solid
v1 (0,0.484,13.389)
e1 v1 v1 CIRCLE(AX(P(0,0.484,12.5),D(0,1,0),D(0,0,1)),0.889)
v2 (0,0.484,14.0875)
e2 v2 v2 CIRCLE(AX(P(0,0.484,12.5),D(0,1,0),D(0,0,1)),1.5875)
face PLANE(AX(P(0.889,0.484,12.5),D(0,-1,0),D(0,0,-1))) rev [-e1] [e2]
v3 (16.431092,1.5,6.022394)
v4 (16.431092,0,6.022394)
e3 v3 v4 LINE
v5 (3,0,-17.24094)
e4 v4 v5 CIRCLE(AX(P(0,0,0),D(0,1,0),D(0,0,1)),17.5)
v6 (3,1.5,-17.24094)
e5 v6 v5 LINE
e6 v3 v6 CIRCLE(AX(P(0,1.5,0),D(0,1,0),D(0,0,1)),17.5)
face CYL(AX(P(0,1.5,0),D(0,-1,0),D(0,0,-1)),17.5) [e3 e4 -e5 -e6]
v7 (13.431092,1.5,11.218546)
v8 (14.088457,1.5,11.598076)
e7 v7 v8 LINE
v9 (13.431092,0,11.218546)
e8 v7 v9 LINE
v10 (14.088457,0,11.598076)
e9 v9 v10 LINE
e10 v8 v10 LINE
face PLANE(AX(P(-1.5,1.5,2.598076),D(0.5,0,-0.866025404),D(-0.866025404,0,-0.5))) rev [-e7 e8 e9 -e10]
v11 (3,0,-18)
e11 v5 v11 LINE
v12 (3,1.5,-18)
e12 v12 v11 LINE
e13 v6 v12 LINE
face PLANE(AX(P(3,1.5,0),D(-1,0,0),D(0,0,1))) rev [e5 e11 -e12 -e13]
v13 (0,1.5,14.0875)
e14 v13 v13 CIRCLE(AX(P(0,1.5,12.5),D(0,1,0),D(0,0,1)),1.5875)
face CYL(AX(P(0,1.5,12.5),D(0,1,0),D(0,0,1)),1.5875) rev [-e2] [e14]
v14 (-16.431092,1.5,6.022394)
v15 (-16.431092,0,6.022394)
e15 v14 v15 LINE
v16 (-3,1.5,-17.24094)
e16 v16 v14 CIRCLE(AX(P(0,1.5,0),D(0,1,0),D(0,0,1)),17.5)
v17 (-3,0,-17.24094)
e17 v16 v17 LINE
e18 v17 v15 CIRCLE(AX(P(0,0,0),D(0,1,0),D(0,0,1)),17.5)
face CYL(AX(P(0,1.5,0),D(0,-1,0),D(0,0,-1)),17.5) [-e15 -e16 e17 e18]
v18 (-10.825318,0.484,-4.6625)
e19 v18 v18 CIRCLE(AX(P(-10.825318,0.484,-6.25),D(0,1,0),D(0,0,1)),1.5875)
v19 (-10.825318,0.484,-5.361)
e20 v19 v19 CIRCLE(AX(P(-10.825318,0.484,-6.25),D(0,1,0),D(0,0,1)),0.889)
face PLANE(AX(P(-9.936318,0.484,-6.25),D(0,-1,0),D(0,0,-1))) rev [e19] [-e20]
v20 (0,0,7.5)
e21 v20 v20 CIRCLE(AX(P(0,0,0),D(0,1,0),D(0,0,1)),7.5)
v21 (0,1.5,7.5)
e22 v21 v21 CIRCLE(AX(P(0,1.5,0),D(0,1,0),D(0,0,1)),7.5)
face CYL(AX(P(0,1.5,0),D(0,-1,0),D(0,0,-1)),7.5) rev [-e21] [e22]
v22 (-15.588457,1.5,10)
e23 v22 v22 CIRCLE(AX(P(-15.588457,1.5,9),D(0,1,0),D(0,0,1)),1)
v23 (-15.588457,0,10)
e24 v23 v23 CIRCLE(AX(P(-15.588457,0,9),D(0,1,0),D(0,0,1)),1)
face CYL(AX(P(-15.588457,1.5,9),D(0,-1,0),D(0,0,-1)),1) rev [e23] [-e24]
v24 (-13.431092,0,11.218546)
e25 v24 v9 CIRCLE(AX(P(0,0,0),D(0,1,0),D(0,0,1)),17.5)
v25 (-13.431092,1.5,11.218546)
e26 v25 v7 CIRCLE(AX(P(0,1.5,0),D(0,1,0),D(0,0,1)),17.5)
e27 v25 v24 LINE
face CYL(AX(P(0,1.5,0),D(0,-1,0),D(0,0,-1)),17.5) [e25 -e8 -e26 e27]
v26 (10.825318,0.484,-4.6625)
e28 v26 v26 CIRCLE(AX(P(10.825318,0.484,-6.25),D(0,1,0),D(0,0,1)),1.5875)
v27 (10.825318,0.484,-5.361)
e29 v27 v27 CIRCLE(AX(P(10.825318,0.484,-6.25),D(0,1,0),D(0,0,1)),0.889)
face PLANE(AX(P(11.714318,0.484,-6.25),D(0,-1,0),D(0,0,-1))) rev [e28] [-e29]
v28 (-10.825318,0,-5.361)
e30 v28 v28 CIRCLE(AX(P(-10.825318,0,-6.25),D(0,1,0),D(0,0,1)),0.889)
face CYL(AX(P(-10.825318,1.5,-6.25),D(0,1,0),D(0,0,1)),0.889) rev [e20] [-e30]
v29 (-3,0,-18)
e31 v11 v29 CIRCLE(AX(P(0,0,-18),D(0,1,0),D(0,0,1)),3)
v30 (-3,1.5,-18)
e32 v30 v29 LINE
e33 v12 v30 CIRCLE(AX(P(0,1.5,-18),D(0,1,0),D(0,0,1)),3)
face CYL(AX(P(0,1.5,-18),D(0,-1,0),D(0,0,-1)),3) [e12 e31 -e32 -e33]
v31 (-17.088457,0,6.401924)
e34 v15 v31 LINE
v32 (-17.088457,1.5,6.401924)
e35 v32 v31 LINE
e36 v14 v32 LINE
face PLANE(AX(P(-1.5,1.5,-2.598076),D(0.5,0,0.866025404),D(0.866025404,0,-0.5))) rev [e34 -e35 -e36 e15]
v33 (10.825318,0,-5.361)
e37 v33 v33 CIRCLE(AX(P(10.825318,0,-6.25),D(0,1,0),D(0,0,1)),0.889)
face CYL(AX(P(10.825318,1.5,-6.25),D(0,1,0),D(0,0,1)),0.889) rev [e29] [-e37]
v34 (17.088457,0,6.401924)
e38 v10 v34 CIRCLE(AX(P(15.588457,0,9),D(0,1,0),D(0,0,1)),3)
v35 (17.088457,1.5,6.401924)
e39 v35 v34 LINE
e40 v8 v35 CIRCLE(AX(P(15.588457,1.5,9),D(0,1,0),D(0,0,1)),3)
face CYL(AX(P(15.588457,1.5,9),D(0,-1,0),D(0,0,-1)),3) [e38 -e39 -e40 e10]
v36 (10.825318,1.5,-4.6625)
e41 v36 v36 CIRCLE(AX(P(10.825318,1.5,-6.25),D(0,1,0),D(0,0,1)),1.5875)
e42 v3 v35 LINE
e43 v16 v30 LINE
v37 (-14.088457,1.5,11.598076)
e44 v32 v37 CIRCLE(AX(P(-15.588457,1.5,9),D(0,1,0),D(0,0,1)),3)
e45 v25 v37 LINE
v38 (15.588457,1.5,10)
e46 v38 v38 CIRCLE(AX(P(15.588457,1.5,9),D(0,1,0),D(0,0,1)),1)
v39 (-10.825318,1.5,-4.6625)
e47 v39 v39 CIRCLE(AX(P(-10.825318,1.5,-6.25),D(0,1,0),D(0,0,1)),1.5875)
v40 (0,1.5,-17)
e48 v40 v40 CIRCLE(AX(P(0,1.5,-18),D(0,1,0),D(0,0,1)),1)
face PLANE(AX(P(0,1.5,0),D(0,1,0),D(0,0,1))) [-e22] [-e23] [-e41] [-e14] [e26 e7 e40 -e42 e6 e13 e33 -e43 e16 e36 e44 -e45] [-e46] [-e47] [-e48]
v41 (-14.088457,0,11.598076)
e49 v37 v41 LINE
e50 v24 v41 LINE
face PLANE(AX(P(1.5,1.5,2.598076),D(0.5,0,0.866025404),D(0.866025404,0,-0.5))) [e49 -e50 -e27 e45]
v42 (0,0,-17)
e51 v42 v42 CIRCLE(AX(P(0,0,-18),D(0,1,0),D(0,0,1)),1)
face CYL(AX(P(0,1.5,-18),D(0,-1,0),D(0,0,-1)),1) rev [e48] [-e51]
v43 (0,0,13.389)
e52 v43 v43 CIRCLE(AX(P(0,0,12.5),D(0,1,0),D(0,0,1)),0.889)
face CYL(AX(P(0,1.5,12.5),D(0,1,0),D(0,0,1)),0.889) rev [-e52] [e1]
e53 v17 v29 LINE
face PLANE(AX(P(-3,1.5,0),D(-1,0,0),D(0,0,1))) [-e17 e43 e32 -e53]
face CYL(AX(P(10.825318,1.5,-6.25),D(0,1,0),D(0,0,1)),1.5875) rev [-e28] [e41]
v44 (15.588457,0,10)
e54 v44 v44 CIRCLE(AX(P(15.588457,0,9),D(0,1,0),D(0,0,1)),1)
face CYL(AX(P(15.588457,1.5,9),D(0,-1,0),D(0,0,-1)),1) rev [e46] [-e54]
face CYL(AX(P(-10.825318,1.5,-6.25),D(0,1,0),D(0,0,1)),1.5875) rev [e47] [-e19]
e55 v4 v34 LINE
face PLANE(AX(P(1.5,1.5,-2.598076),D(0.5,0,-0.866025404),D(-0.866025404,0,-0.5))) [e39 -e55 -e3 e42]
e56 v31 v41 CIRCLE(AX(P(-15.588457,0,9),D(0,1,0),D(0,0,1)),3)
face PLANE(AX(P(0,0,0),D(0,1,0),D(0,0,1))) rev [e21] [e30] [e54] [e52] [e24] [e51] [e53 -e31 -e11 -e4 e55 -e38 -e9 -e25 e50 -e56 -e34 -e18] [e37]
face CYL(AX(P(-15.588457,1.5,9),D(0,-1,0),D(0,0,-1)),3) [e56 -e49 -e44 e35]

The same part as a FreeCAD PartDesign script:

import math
import FreeCAD as App
import Part
import Sketcher

V = App.Vector
Q = App.Units.Quantity

doc = App.newDocument("Part")
body = doc.addObject("PartDesign::Body", "Body")

sketch1 = body.newObject("Sketcher::SketchObject", "Sketch")
sketch1.AttachmentSupport = (doc.getObject("XZ_Plane"), [""])
sketch1.MapMode = "FlatFace"
sketch1.addGeometry(Part.LineSegment(V(-16.43, 6.02, 0), V(-17.09, 6.4, 0)), False)
sketch1.addGeometry(Part.ArcOfCircle(Part.Circle(V(-15.59, 9, 0), V(0, 0, 1), 3), math.radians(60), math.radians(240)), False)
sketch1.addGeometry(Part.LineSegment(V(-14.09, 11.6, 0), V(-13.43, 11.22, 0)), False)
sketch1.addGeometry(Part.ArcOfCircle(Part.Circle(V(0, 0, 0), V(0, 0, 1), 17.5), math.radians(40), math.radians(140)), False)
sketch1.addGeometry(Part.LineSegment(V(13.43, 11.22, 0), V(14.09, 11.6, 0)), False)
sketch1.addGeometry(Part.ArcOfCircle(Part.Circle(V(15.59, 9, 0), V(0, 0, 1), 3), math.radians(-60), math.radians(120)), False)
sketch1.addGeometry(Part.LineSegment(V(17.09, 6.4, 0), V(16.43, 6.02, 0)), False)
sketch1.addGeometry(Part.ArcOfCircle(Part.Circle(V(0, 0, 0), V(0, 0, 1), 17.5), math.radians(0), math.radians(20)), False)
sketch1.addGeometry(Part.ArcOfCircle(Part.Circle(V(0, 0, 0), V(0, 0, 1), 17.5), math.radians(-80), math.radians(0)), False)
sketch1.addGeometry(Part.LineSegment(V(3, -17.24, 0), V(3, -18, 0)), False)
sketch1.addGeometry(Part.ArcOfCircle(Part.Circle(V(0, -18, 0), V(0, 0, 1), 3), math.radians(180), math.radians(360)), False)
sketch1.addGeometry(Part.LineSegment(V(-3, -18, 0), V(-3, -17.24, 0)), False)
sketch1.addGeometry(Part.ArcOfCircle(Part.Circle(V(0, 0, 0), V(0, 0, 1), 17.5), math.radians(160), math.radians(260)), False)
sketch1.addGeometry(Part.ArcOfCircle(Part.Circle(V(15.59, 9, 0), V(0, 0, 1), 1), math.radians(151), math.radians(269)), False)
sketch1.addGeometry(Part.ArcOfCircle(Part.Circle(V(15.59, 9, 0), V(0, 0, 1), 1), math.radians(-91), math.radians(0)), False)
sketch1.addGeometry(Part.ArcOfCircle(Part.Circle(V(15.59, 9, 0), V(0, 0, 1), 1), math.radians(0), math.radians(151)), False)
sketch1.addGeometry(Part.ArcOfCircle(Part.Circle(V(0, 0, 0), V(0, 0, 1), 7.5), math.radians(-66), math.radians(0)), False)
sketch1.addGeometry(Part.ArcOfCircle(Part.Circle(V(0, 0, 0), V(0, 0, 1), 7.5), math.radians(0), math.radians(6.42)), False)
sketch1.addGeometry(Part.ArcOfCircle(Part.Circle(V(0, 0, 0), V(0, 0, 1), 7.5), math.radians(6), math.radians(54)), False)
sketch1.addGeometry(Part.ArcOfCircle(Part.Circle(V(0, 0, 0), V(0, 0, 1), 7.5), math.radians(54), math.radians(126)), False)
sketch1.addGeometry(Part.ArcOfCircle(Part.Circle(V(0, 0, 0), V(0, 0, 1), 7.5), math.radians(126), math.radians(174)), False)
sketch1.addGeometry(Part.ArcOfCircle(Part.Circle(V(0, 0, 0), V(0, 0, 1), 7.5), math.radians(174), math.radians(246)), False)
sketch1.addGeometry(Part.ArcOfCircle(Part.Circle(V(0, 0, 0), V(0, 0, 1), 7.5), math.radians(-114), math.radians(-66)), False)
sketch1.addGeometry(Part.ArcOfCircle(Part.Circle(V(-15.59, 9, 0), V(0, 0, 1), 1), math.radians(29), math.radians(271)), False)
sketch1.addGeometry(Part.ArcOfCircle(Part.Circle(V(-15.59, 9, 0), V(0, 0, 1), 1), math.radians(-89), math.radians(0)), False)
sketch1.addGeometry(Part.ArcOfCircle(Part.Circle(V(-15.59, 9, 0), V(0, 0, 1), 1), math.radians(0), math.radians(29)), False)
sketch1.addGeometry(Part.ArcOfCircle(Part.Circle(V(0, -18, 0), V(0, 0, 1), 1), math.radians(31), math.radians(149)), False)
sketch1.addGeometry(Part.ArcOfCircle(Part.Circle(V(0, -18, 0), V(0, 0, 1), 1), math.radians(149), math.radians(360)), False)
sketch1.addGeometry(Part.ArcOfCircle(Part.Circle(V(0, -18, 0), V(0, 0, 1), 1), math.radians(0), math.radians(31)), False)
sketch1.addConstraint(Sketcher.Constraint("Tangent", 0, 2, 1, 2))
sketch1.addConstraint(Sketcher.Constraint("Tangent", 1, 1, 2, 1))
sketch1.addConstraint(Sketcher.Constraint("Coincident", 2, 2, 3, 2))
sketch1.addConstraint(Sketcher.Constraint("Coincident", 3, 1, 4, 1))
sketch1.addConstraint(Sketcher.Constraint("Tangent", 4, 2, 5, 2))
sketch1.addConstraint(Sketcher.Constraint("Tangent", 5, 1, 6, 1))
sketch1.addConstraint(Sketcher.Constraint("Coincident", 6, 2, 7, 2))
sketch1.addConstraint(Sketcher.Constraint("Tangent", 7, 1, 8, 2))
sketch1.addConstraint(Sketcher.Constraint("Coincident", 8, 1, 9, 1))
sketch1.addConstraint(Sketcher.Constraint("Tangent", 9, 2, 10, 2))
sketch1.addConstraint(Sketcher.Constraint("Tangent", 10, 1, 11, 1))
sketch1.addConstraint(Sketcher.Constraint("Coincident", 11, 2, 12, 2))
sketch1.addConstraint(Sketcher.Constraint("Coincident", 12, 1, 0, 1))
sketch1.addConstraint(Sketcher.Constraint("Tangent", 13, 2, 14, 1))
sketch1.addConstraint(Sketcher.Constraint("Tangent", 14, 2, 15, 1))
sketch1.addConstraint(Sketcher.Constraint("Tangent", 15, 2, 13, 1))
sketch1.addConstraint(Sketcher.Constraint("Tangent", 16, 2, 17, 1))
sketch1.addConstraint(Sketcher.Constraint("Tangent", 17, 2, 18, 1))
sketch1.addConstraint(Sketcher.Constraint("Tangent", 18, 2, 19, 1))
sketch1.addConstraint(Sketcher.Constraint("Tangent", 19, 2, 20, 1))
sketch1.addConstraint(Sketcher.Constraint("Tangent", 20, 2, 21, 1))
sketch1.addConstraint(Sketcher.Constraint("Tangent", 21, 2, 22, 1))
sketch1.addConstraint(Sketcher.Constraint("Tangent", 22, 2, 16, 1))
sketch1.addConstraint(Sketcher.Constraint("Tangent", 23, 2, 24, 1))
sketch1.addConstraint(Sketcher.Constraint("Tangent", 24, 2, 25, 1))
sketch1.addConstraint(Sketcher.Constraint("Tangent", 25, 2, 23, 1))
sketch1.addConstraint(Sketcher.Constraint("Tangent", 26, 2, 27, 1))
sketch1.addConstraint(Sketcher.Constraint("Tangent", 27, 2, 28, 1))
sketch1.addConstraint(Sketcher.Constraint("Tangent", 28, 2, 26, 1))
sketch1.addConstraint(Sketcher.Constraint("Vertical", 9))
sketch1.addConstraint(Sketcher.Constraint("Vertical", 11))
sketch1.addConstraint(Sketcher.Constraint("Coincident", 3, 3, -1, 1))
sketch1.addConstraint(Sketcher.Constraint("Coincident", 7, 3, -1, 1))
sketch1.addConstraint(Sketcher.Constraint("Coincident", 12, 3, -1, 1))
sketch1.addConstraint(Sketcher.Constraint("Coincident", 16, 3, -1, 1))
sketch1.addConstraint(Sketcher.Constraint("Coincident", 18, 3, -1, 1))
sketch1.addConstraint(Sketcher.Constraint("Coincident", 20, 3, -1, 1))
sketch1.addConstraint(Sketcher.Constraint("Coincident", 13, 3, 5, 3))
sketch1.addConstraint(Sketcher.Constraint("Coincident", 23, 3, 1, 3))
sketch1.addConstraint(Sketcher.Constraint("Coincident", 26, 3, 10, 3))
sketch1.addConstraint(Sketcher.Constraint("Equal", 1, 5))
sketch1.addConstraint(Sketcher.Constraint("Equal", 3, 7))
sketch1.addConstraint(Sketcher.Constraint("Equal", 7, 8))
sketch1.addConstraint(Sketcher.Constraint("Equal", 5, 10))
sketch1.addConstraint(Sketcher.Constraint("Equal", 8, 12))
sketch1.addConstraint(Sketcher.Constraint("Equal", 15, 23))
sketch1.addConstraint(Sketcher.Constraint("Equal", 25, 26))
sketch1.addConstraint(Sketcher.Constraint("Symmetric", 1, 3, 5, 3, -2))
sketch1.addConstraint(Sketcher.Constraint("Symmetric", 26, 2, 28, 2, -2))
sketch1.addConstraint(Sketcher.Constraint("PointOnObject", 7, 1, -1))
sketch1.addConstraint(Sketcher.Constraint("PointOnObject", 16, 2, -1))
sketch1.addConstraint(Sketcher.Constraint("Parallel", 0, 2))
sketch1.addConstraint(Sketcher.Constraint("Parallel", 4, 6))
sketch1.addConstraint(Sketcher.Constraint("Horizontal", 2, 2, 3, 1))
sketch1.addConstraint(Sketcher.Constraint("Horizontal", 25, 3, 14, 2))
sketch1.addConstraint(Sketcher.Constraint("Horizontal", 18, 2, 19, 2))
sketch1.addConstraint(Sketcher.Constraint("Horizontal", 17, 2, 20, 2))
sketch1.addConstraint(Sketcher.Constraint("Horizontal", 21, 2, 22, 2))
sketch1.addConstraint(Sketcher.Constraint("Horizontal", 13, 2, 23, 2))
sketch1.addConstraint(Sketcher.Constraint("Horizontal", 14, 2, 24, 2))
sketch1.addConstraint(Sketcher.Constraint("Horizontal", 15, 2, 25, 2))
sketch1.addConstraint(Sketcher.Constraint("Horizontal", 10, 1, 27, 2))
sketch1.addConstraint(Sketcher.Constraint("Vertical", 11, 2, 21, 2))
sketch1.addConstraint(Sketcher.Constraint("Equal", 0, 2))
sketch1.addConstraint(Sketcher.Constraint("Radius", 1, Q("3 mm")))
sketch1.addConstraint(Sketcher.Constraint("Radius", 13, Q("1 mm")))
sketch1.addConstraint(Sketcher.Constraint("Radius", 3, Q("17.5 mm")))
sketch1.addConstraint(Sketcher.Constraint("Radius", 16, Q("7.5 mm")))
sketch1.addConstraint(Sketcher.Constraint("Angle", 0, Q("150 deg")))
sketch1.addConstraint(Sketcher.Constraint("DistanceY", -1, 1, 1, 3, Q("9 mm")))
sketch1.addConstraint(Sketcher.Constraint("DistanceY", 10, 3, -1, 1, Q("18 mm")))
sketch1.addConstraint(Sketcher.Constraint("DistanceX", 18, 2, 17, 2, Q("3 mm")))
sketch1.addConstraint(Sketcher.Constraint("DistanceY", 6, 2, 13, 2, Q("1.9779 mm")))
sketch1.addConstraint(Sketcher.Constraint("DistanceX", -1, 1, 17, 2, Q("7.45294 mm")))
sketch1.addConstraint(Sketcher.Constraint("DistanceX", 26, 2, -1, 1, Q("0.853658 mm")))
sketch1.addConstraint(Sketcher.Constraint("DistanceX", 15, 2, 13, 2, Q("0.853658 mm")))
pad1 = body.newObject("PartDesign::Pad", "Pad")
pad1.Profile = sketch1
pad1.Length = 1.5
pad1.Reversed = True

sketch2 = body.newObject("Sketcher::SketchObject", "Sketch001")
sketch2.AttachmentSupport = (doc.getObject("XZ_Plane"), [""])
sketch2.MapMode = "FlatFace"
sketch2.AttachmentOffset = App.Placement(V(0, 0, -1.5), App.Rotation())
sketch2.addGeometry(Part.Circle(V(-10.8, -6.2, 0), V(0, 0, 1), 0.9), False)
sketch2.addGeometry(Part.Circle(V(10.8, -6.2, 0), V(0, 0, 1), 0.9), False)
sketch2.addGeometry(Part.Circle(V(0, 12.5, 0), V(0, 0, 1), 0.9), False)
sketch2.addConstraint(Sketcher.Constraint("Equal", 0, 1))
sketch2.addConstraint(Sketcher.Constraint("Equal", 1, 2))
sketch2.addConstraint(Sketcher.Constraint("Symmetric", 0, 3, 1, 3, -2))
sketch2.addConstraint(Sketcher.Constraint("PointOnObject", 2, 3, -2))
sketch2.addConstraint(Sketcher.Constraint("Diameter", 0, Q("1.778 mm")))
sketch2.addConstraint(Sketcher.Constraint("DistanceY", -1, 1, 2, 3, Q("12.5 mm")))
sketch2.addConstraint(Sketcher.Constraint("DistanceY", 0, 3, -1, 1, Q("6.25 mm")))
sketch2.addConstraint(Sketcher.Constraint("DistanceX", 0, 3, -1, 1, Q("10.825318 mm")))
doc.recompute()
hole = body.newObject("PartDesign::Hole", "Hole")
hole.Profile = sketch2
hole.ThreadType = "None"
hole.Diameter = 1.778
hole.DepthType = "ThroughAll"
hole.HoleCutType = "Counterbore"
hole.HoleCutDiameter = 3.175
hole.HoleCutDepth = 1.016
hole.Reversed = True

doc.recompute()
